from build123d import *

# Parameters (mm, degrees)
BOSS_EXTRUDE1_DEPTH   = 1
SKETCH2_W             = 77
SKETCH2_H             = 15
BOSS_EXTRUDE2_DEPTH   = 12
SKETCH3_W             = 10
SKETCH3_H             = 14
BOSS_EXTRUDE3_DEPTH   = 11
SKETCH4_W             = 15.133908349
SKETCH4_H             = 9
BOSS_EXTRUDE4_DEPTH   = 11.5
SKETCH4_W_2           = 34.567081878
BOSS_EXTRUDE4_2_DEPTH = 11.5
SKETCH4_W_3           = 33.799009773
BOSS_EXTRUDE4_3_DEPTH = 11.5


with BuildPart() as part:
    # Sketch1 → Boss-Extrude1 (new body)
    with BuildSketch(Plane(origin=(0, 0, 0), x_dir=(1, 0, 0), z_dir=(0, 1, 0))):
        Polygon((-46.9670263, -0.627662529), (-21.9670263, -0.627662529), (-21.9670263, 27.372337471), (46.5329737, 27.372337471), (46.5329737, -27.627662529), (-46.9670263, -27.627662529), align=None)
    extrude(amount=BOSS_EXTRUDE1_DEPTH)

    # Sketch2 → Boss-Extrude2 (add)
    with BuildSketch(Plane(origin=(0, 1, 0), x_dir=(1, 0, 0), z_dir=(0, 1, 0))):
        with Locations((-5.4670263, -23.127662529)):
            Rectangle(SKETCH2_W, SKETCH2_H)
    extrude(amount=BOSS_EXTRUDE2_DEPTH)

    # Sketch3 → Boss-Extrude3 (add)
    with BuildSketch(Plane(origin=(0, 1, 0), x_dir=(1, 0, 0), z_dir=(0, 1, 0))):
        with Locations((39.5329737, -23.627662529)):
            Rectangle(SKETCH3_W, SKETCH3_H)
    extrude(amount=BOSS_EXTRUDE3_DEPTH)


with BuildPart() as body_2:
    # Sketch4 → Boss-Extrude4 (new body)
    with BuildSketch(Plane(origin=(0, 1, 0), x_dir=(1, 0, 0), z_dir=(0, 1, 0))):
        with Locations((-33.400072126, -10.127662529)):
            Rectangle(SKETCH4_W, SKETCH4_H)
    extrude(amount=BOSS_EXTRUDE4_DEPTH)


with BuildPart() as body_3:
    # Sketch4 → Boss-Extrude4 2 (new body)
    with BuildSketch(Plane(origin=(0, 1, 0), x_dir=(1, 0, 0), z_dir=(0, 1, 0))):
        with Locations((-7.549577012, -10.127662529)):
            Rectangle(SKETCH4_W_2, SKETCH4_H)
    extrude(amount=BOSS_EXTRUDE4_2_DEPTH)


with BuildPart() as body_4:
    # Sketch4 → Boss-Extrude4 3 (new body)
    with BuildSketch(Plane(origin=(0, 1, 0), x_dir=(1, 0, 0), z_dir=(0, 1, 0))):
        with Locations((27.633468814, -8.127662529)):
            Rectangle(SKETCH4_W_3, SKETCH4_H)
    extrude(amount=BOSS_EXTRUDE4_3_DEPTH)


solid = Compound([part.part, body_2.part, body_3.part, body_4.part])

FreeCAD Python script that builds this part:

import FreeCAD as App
import Part
import Sketcher
from FreeCAD import Vector


def add_polygon(sketch, points):
    """Adds a closed chain of lines whose ends are joined by coincident constraints."""
    first, n = sketch.GeometryCount, len(points)
    for a, b in zip(points, points[1:] + points[:1]):
        sketch.addGeometry(Part.LineSegment(App.Vector(*a, 0), App.Vector(*b, 0)), False)
    for i in range(n):
        sketch.addConstraint(Sketcher.Constraint("Coincident", first + i, 2, first + (i + 1) % n, 1))

doc = App.newDocument("Part")
body = doc.addObject("PartDesign::Body", "Body")

# Sketch on XZ plane
sketch1 = doc.addObject("Sketcher::SketchObject", "Sketch")
body.addObject(sketch1)
sketch1.AttachmentSupport = (doc.XZ_Plane, [""])
sketch1.MapMode = "FlatFace"
add_polygon(sketch1, [(-21.967026, 0.627663), (-46.967026, 0.627663), (-46.967026, 27.627663), (46.532974, 27.627663), (46.532974, -27.372337), (-21.967026, -27.372337)])  # lines 0-5
sketch1.addConstraint([
    Sketcher.Constraint("Horizontal", 0),
    Sketcher.Constraint("Vertical", 1),
    Sketcher.Constraint("Horizontal", 2),
    Sketcher.Constraint("Vertical", 3),
    Sketcher.Constraint("Horizontal", 4),
    Sketcher.Constraint("Vertical", 5),
    Sketcher.Constraint("DistanceX", 0, 2, 0, 1, 25.0),
    Sketcher.Constraint("DistanceY", 1, 1, 1, 2, 27.0),
    Sketcher.Constraint("DistanceY", 3, 2, 3, 1, 55.0),
    Sketcher.Constraint("DistanceX", 2, 1, 2, 2, 93.5),
    Sketcher.Constraint("DistanceX", 0, 2, -1, 1, 46.967026),
    Sketcher.Constraint("DistanceY", -1, 1, 0, 2, 0.627663),
])
pad1 = doc.addObject("PartDesign::Pad", "Pad")
body.addObject(pad1)
pad1.Profile = sketch1
pad1.Length = 1
pad1.Reversed = True

# Sketch on XZ plane
sketch2 = doc.addObject("Sketcher::SketchObject", "Sketch001")
body.addObject(sketch2)
sketch2.AttachmentSupport = (doc.XZ_Plane, [""])
sketch2.MapMode = "FlatFace"
sketch2.AttachmentOffset = App.Placement(Vector(0, 0, -1), App.Rotation())
add_polygon(sketch2, [(-43.967026, 15.627663), (-43.967026, 30.627663), (33.032974, 30.627663), (33.032974, 15.627663)])  # lines 0-3
sketch2.addConstraint([
    Sketcher.Constraint("Vertical", 0),
    Sketcher.Constraint("Horizontal", 1),
    Sketcher.Constraint("Vertical", 2),
    Sketcher.Constraint("Horizontal", 3),
    Sketcher.Constraint("DistanceX", 1, 1, 1, 2, 77.0),
    Sketcher.Constraint("DistanceY", 0, 1, 0, 2, 15.0),
    Sketcher.Constraint("DistanceX", 0, 2, -1, 1, 43.967026),
    Sketcher.Constraint("DistanceY", -1, 1, 0, 2, 30.627663),
])
pad2 = doc.addObject("PartDesign::Pad", "Pad001")
body.addObject(pad2)
pad2.Profile = sketch2
pad2.Length = 12
pad2.Reversed = True

# Sketch on XZ plane
sketch3 = doc.addObject("Sketcher::SketchObject", "Sketch002")
body.addObject(sketch3)
sketch3.AttachmentSupport = (doc.XZ_Plane, [""])
sketch3.MapMode = "FlatFace"
sketch3.AttachmentOffset = App.Placement(Vector(0, 0, -1), App.Rotation())
add_polygon(sketch3, [(34.532974, 16.627663), (34.532974, 30.627663), (44.532974, 30.627663), (44.532974, 16.627663)])  # lines 0-3
sketch3.addConstraint([
    Sketcher.Constraint("Vertical", 0),
    Sketcher.Constraint("Horizontal", 1),
    Sketcher.Constraint("Vertical", 2),
    Sketcher.Constraint("Horizontal", 3),
    Sketcher.Constraint("DistanceX", 1, 1, 1, 2, 10.0),
    Sketcher.Constraint("DistanceY", 0, 1, 0, 2, 14.0),
    Sketcher.Constraint("DistanceX", -1, 1, 0, 2, 34.532974),
    Sketcher.Constraint("DistanceY", -1, 1, 0, 2, 30.627663),
])
pad3 = doc.addObject("PartDesign::Pad", "Pad002")
body.addObject(pad3)
pad3.Profile = sketch3
pad3.Length = 11
pad3.Reversed = True
body2 = doc.addObject("PartDesign::Body", "Body001")

# Sketch on XZ plane
sketch4 = doc.addObject("Sketcher::SketchObject", "Sketch003")
body2.addObject(sketch4)
sketch4.AttachmentSupport = (doc.getObject("XZ_Plane001"), [""])
sketch4.MapMode = "FlatFace"
sketch4.AttachmentOffset = App.Placement(Vector(0, 0, -1), App.Rotation())
add_polygon(sketch4, [(-40.967026, 5.627663), (-40.967026, 14.627663), (-25.833118, 14.627663), (-25.833118, 5.627663)])  # lines 0-3
sketch4.addConstraint([
    Sketcher.Constraint("Vertical", 0),
    Sketcher.Constraint("Horizontal", 1),
    Sketcher.Constraint("Vertical", 2),
    Sketcher.Constraint("Horizontal", 3),
    Sketcher.Constraint("DistanceY", 0, 1, 0, 2, 9.0),
    Sketcher.Constraint("DistanceX", 1, 1, 1, 2, 15.133908),
    Sketcher.Constraint("DistanceX", 0, 2, -1, 1, 40.967026),
    Sketcher.Constraint("DistanceY", -1, 1, 0, 2, 14.627663),
])
pad4 = doc.addObject("PartDesign::Pad", "Pad003")
body2.addObject(pad4)
pad4.Profile = sketch4
pad4.Length = 11.5
pad4.Reversed = True
body3 = doc.addObject("PartDesign::Body", "Body002")

# Sketch on XZ plane
sketch5 = doc.addObject("Sketcher::SketchObject", "Sketch004")
body3.addObject(sketch5)
sketch5.AttachmentSupport = (doc.getObject("XZ_Plane002"), [""])
sketch5.MapMode = "FlatFace"
sketch5.AttachmentOffset = App.Placement(Vector(0, 0, -1), App.Rotation())
add_polygon(sketch5, [(-24.833118, 5.627663), (-24.833118, 14.627663), (9.733964, 14.627663), (9.733964, 5.627663)])  # lines 0-3
sketch5.addConstraint([
    Sketcher.Constraint("Vertical", 0),
    Sketcher.Constraint("Horizontal", 1),
    Sketcher.Constraint("Vertical", 2),
    Sketcher.Constraint("Horizontal", 3),
    Sketcher.Constraint("DistanceY", 0, 1, 0, 2, 9.0),
    Sketcher.Constraint("DistanceX", 1, 1, 1, 2, 34.567082),
    Sketcher.Constraint("DistanceX", 0, 2, -1, 1, 24.833118),
    Sketcher.Constraint("DistanceY", -1, 1, 0, 2, 14.627663),
])
pad5 = doc.addObject("PartDesign::Pad", "Pad004")
body3.addObject(pad5)
pad5.Profile = sketch5
pad5.Length = 11.5
pad5.Reversed = True
body4 = doc.addObject("PartDesign::Body", "Body003")

# Sketch on XZ plane
sketch6 = doc.addObject("Sketcher::SketchObject", "Sketch005")
body4.addObject(sketch6)
sketch6.AttachmentSupport = (doc.getObject("XZ_Plane003"), [""])
sketch6.MapMode = "FlatFace"
sketch6.AttachmentOffset = App.Placement(Vector(0, 0, -1), App.Rotation())
add_polygon(sketch6, [(10.733964, 3.627663), (10.733964, 12.627663), (44.532974, 12.627663), (44.532974, 3.627663)])  # lines 0-3
sketch6.addConstraint([
    Sketcher.Constraint("Vertical", 0),
    Sketcher.Constraint("Horizontal", 1),
    Sketcher.Constraint("Vertical", 2),
    Sketcher.Constraint("Horizontal", 3),
    Sketcher.Constraint("DistanceY", 0, 1, 0, 2, 9.0),
    Sketcher.Constraint("DistanceX", 1, 1, 1, 2, 33.79901),
    Sketcher.Constraint("DistanceX", -1, 1, 0, 2, 10.733964),
    Sketcher.Constraint("DistanceY", -1, 1, 0, 2, 12.627663),
])
pad6 = doc.addObject("PartDesign::Pad", "Pad005")
body4.addObject(pad6)
pad6.Profile = sketch6
pad6.Length = 11.5
pad6.Reversed = True

doc.recompute()
